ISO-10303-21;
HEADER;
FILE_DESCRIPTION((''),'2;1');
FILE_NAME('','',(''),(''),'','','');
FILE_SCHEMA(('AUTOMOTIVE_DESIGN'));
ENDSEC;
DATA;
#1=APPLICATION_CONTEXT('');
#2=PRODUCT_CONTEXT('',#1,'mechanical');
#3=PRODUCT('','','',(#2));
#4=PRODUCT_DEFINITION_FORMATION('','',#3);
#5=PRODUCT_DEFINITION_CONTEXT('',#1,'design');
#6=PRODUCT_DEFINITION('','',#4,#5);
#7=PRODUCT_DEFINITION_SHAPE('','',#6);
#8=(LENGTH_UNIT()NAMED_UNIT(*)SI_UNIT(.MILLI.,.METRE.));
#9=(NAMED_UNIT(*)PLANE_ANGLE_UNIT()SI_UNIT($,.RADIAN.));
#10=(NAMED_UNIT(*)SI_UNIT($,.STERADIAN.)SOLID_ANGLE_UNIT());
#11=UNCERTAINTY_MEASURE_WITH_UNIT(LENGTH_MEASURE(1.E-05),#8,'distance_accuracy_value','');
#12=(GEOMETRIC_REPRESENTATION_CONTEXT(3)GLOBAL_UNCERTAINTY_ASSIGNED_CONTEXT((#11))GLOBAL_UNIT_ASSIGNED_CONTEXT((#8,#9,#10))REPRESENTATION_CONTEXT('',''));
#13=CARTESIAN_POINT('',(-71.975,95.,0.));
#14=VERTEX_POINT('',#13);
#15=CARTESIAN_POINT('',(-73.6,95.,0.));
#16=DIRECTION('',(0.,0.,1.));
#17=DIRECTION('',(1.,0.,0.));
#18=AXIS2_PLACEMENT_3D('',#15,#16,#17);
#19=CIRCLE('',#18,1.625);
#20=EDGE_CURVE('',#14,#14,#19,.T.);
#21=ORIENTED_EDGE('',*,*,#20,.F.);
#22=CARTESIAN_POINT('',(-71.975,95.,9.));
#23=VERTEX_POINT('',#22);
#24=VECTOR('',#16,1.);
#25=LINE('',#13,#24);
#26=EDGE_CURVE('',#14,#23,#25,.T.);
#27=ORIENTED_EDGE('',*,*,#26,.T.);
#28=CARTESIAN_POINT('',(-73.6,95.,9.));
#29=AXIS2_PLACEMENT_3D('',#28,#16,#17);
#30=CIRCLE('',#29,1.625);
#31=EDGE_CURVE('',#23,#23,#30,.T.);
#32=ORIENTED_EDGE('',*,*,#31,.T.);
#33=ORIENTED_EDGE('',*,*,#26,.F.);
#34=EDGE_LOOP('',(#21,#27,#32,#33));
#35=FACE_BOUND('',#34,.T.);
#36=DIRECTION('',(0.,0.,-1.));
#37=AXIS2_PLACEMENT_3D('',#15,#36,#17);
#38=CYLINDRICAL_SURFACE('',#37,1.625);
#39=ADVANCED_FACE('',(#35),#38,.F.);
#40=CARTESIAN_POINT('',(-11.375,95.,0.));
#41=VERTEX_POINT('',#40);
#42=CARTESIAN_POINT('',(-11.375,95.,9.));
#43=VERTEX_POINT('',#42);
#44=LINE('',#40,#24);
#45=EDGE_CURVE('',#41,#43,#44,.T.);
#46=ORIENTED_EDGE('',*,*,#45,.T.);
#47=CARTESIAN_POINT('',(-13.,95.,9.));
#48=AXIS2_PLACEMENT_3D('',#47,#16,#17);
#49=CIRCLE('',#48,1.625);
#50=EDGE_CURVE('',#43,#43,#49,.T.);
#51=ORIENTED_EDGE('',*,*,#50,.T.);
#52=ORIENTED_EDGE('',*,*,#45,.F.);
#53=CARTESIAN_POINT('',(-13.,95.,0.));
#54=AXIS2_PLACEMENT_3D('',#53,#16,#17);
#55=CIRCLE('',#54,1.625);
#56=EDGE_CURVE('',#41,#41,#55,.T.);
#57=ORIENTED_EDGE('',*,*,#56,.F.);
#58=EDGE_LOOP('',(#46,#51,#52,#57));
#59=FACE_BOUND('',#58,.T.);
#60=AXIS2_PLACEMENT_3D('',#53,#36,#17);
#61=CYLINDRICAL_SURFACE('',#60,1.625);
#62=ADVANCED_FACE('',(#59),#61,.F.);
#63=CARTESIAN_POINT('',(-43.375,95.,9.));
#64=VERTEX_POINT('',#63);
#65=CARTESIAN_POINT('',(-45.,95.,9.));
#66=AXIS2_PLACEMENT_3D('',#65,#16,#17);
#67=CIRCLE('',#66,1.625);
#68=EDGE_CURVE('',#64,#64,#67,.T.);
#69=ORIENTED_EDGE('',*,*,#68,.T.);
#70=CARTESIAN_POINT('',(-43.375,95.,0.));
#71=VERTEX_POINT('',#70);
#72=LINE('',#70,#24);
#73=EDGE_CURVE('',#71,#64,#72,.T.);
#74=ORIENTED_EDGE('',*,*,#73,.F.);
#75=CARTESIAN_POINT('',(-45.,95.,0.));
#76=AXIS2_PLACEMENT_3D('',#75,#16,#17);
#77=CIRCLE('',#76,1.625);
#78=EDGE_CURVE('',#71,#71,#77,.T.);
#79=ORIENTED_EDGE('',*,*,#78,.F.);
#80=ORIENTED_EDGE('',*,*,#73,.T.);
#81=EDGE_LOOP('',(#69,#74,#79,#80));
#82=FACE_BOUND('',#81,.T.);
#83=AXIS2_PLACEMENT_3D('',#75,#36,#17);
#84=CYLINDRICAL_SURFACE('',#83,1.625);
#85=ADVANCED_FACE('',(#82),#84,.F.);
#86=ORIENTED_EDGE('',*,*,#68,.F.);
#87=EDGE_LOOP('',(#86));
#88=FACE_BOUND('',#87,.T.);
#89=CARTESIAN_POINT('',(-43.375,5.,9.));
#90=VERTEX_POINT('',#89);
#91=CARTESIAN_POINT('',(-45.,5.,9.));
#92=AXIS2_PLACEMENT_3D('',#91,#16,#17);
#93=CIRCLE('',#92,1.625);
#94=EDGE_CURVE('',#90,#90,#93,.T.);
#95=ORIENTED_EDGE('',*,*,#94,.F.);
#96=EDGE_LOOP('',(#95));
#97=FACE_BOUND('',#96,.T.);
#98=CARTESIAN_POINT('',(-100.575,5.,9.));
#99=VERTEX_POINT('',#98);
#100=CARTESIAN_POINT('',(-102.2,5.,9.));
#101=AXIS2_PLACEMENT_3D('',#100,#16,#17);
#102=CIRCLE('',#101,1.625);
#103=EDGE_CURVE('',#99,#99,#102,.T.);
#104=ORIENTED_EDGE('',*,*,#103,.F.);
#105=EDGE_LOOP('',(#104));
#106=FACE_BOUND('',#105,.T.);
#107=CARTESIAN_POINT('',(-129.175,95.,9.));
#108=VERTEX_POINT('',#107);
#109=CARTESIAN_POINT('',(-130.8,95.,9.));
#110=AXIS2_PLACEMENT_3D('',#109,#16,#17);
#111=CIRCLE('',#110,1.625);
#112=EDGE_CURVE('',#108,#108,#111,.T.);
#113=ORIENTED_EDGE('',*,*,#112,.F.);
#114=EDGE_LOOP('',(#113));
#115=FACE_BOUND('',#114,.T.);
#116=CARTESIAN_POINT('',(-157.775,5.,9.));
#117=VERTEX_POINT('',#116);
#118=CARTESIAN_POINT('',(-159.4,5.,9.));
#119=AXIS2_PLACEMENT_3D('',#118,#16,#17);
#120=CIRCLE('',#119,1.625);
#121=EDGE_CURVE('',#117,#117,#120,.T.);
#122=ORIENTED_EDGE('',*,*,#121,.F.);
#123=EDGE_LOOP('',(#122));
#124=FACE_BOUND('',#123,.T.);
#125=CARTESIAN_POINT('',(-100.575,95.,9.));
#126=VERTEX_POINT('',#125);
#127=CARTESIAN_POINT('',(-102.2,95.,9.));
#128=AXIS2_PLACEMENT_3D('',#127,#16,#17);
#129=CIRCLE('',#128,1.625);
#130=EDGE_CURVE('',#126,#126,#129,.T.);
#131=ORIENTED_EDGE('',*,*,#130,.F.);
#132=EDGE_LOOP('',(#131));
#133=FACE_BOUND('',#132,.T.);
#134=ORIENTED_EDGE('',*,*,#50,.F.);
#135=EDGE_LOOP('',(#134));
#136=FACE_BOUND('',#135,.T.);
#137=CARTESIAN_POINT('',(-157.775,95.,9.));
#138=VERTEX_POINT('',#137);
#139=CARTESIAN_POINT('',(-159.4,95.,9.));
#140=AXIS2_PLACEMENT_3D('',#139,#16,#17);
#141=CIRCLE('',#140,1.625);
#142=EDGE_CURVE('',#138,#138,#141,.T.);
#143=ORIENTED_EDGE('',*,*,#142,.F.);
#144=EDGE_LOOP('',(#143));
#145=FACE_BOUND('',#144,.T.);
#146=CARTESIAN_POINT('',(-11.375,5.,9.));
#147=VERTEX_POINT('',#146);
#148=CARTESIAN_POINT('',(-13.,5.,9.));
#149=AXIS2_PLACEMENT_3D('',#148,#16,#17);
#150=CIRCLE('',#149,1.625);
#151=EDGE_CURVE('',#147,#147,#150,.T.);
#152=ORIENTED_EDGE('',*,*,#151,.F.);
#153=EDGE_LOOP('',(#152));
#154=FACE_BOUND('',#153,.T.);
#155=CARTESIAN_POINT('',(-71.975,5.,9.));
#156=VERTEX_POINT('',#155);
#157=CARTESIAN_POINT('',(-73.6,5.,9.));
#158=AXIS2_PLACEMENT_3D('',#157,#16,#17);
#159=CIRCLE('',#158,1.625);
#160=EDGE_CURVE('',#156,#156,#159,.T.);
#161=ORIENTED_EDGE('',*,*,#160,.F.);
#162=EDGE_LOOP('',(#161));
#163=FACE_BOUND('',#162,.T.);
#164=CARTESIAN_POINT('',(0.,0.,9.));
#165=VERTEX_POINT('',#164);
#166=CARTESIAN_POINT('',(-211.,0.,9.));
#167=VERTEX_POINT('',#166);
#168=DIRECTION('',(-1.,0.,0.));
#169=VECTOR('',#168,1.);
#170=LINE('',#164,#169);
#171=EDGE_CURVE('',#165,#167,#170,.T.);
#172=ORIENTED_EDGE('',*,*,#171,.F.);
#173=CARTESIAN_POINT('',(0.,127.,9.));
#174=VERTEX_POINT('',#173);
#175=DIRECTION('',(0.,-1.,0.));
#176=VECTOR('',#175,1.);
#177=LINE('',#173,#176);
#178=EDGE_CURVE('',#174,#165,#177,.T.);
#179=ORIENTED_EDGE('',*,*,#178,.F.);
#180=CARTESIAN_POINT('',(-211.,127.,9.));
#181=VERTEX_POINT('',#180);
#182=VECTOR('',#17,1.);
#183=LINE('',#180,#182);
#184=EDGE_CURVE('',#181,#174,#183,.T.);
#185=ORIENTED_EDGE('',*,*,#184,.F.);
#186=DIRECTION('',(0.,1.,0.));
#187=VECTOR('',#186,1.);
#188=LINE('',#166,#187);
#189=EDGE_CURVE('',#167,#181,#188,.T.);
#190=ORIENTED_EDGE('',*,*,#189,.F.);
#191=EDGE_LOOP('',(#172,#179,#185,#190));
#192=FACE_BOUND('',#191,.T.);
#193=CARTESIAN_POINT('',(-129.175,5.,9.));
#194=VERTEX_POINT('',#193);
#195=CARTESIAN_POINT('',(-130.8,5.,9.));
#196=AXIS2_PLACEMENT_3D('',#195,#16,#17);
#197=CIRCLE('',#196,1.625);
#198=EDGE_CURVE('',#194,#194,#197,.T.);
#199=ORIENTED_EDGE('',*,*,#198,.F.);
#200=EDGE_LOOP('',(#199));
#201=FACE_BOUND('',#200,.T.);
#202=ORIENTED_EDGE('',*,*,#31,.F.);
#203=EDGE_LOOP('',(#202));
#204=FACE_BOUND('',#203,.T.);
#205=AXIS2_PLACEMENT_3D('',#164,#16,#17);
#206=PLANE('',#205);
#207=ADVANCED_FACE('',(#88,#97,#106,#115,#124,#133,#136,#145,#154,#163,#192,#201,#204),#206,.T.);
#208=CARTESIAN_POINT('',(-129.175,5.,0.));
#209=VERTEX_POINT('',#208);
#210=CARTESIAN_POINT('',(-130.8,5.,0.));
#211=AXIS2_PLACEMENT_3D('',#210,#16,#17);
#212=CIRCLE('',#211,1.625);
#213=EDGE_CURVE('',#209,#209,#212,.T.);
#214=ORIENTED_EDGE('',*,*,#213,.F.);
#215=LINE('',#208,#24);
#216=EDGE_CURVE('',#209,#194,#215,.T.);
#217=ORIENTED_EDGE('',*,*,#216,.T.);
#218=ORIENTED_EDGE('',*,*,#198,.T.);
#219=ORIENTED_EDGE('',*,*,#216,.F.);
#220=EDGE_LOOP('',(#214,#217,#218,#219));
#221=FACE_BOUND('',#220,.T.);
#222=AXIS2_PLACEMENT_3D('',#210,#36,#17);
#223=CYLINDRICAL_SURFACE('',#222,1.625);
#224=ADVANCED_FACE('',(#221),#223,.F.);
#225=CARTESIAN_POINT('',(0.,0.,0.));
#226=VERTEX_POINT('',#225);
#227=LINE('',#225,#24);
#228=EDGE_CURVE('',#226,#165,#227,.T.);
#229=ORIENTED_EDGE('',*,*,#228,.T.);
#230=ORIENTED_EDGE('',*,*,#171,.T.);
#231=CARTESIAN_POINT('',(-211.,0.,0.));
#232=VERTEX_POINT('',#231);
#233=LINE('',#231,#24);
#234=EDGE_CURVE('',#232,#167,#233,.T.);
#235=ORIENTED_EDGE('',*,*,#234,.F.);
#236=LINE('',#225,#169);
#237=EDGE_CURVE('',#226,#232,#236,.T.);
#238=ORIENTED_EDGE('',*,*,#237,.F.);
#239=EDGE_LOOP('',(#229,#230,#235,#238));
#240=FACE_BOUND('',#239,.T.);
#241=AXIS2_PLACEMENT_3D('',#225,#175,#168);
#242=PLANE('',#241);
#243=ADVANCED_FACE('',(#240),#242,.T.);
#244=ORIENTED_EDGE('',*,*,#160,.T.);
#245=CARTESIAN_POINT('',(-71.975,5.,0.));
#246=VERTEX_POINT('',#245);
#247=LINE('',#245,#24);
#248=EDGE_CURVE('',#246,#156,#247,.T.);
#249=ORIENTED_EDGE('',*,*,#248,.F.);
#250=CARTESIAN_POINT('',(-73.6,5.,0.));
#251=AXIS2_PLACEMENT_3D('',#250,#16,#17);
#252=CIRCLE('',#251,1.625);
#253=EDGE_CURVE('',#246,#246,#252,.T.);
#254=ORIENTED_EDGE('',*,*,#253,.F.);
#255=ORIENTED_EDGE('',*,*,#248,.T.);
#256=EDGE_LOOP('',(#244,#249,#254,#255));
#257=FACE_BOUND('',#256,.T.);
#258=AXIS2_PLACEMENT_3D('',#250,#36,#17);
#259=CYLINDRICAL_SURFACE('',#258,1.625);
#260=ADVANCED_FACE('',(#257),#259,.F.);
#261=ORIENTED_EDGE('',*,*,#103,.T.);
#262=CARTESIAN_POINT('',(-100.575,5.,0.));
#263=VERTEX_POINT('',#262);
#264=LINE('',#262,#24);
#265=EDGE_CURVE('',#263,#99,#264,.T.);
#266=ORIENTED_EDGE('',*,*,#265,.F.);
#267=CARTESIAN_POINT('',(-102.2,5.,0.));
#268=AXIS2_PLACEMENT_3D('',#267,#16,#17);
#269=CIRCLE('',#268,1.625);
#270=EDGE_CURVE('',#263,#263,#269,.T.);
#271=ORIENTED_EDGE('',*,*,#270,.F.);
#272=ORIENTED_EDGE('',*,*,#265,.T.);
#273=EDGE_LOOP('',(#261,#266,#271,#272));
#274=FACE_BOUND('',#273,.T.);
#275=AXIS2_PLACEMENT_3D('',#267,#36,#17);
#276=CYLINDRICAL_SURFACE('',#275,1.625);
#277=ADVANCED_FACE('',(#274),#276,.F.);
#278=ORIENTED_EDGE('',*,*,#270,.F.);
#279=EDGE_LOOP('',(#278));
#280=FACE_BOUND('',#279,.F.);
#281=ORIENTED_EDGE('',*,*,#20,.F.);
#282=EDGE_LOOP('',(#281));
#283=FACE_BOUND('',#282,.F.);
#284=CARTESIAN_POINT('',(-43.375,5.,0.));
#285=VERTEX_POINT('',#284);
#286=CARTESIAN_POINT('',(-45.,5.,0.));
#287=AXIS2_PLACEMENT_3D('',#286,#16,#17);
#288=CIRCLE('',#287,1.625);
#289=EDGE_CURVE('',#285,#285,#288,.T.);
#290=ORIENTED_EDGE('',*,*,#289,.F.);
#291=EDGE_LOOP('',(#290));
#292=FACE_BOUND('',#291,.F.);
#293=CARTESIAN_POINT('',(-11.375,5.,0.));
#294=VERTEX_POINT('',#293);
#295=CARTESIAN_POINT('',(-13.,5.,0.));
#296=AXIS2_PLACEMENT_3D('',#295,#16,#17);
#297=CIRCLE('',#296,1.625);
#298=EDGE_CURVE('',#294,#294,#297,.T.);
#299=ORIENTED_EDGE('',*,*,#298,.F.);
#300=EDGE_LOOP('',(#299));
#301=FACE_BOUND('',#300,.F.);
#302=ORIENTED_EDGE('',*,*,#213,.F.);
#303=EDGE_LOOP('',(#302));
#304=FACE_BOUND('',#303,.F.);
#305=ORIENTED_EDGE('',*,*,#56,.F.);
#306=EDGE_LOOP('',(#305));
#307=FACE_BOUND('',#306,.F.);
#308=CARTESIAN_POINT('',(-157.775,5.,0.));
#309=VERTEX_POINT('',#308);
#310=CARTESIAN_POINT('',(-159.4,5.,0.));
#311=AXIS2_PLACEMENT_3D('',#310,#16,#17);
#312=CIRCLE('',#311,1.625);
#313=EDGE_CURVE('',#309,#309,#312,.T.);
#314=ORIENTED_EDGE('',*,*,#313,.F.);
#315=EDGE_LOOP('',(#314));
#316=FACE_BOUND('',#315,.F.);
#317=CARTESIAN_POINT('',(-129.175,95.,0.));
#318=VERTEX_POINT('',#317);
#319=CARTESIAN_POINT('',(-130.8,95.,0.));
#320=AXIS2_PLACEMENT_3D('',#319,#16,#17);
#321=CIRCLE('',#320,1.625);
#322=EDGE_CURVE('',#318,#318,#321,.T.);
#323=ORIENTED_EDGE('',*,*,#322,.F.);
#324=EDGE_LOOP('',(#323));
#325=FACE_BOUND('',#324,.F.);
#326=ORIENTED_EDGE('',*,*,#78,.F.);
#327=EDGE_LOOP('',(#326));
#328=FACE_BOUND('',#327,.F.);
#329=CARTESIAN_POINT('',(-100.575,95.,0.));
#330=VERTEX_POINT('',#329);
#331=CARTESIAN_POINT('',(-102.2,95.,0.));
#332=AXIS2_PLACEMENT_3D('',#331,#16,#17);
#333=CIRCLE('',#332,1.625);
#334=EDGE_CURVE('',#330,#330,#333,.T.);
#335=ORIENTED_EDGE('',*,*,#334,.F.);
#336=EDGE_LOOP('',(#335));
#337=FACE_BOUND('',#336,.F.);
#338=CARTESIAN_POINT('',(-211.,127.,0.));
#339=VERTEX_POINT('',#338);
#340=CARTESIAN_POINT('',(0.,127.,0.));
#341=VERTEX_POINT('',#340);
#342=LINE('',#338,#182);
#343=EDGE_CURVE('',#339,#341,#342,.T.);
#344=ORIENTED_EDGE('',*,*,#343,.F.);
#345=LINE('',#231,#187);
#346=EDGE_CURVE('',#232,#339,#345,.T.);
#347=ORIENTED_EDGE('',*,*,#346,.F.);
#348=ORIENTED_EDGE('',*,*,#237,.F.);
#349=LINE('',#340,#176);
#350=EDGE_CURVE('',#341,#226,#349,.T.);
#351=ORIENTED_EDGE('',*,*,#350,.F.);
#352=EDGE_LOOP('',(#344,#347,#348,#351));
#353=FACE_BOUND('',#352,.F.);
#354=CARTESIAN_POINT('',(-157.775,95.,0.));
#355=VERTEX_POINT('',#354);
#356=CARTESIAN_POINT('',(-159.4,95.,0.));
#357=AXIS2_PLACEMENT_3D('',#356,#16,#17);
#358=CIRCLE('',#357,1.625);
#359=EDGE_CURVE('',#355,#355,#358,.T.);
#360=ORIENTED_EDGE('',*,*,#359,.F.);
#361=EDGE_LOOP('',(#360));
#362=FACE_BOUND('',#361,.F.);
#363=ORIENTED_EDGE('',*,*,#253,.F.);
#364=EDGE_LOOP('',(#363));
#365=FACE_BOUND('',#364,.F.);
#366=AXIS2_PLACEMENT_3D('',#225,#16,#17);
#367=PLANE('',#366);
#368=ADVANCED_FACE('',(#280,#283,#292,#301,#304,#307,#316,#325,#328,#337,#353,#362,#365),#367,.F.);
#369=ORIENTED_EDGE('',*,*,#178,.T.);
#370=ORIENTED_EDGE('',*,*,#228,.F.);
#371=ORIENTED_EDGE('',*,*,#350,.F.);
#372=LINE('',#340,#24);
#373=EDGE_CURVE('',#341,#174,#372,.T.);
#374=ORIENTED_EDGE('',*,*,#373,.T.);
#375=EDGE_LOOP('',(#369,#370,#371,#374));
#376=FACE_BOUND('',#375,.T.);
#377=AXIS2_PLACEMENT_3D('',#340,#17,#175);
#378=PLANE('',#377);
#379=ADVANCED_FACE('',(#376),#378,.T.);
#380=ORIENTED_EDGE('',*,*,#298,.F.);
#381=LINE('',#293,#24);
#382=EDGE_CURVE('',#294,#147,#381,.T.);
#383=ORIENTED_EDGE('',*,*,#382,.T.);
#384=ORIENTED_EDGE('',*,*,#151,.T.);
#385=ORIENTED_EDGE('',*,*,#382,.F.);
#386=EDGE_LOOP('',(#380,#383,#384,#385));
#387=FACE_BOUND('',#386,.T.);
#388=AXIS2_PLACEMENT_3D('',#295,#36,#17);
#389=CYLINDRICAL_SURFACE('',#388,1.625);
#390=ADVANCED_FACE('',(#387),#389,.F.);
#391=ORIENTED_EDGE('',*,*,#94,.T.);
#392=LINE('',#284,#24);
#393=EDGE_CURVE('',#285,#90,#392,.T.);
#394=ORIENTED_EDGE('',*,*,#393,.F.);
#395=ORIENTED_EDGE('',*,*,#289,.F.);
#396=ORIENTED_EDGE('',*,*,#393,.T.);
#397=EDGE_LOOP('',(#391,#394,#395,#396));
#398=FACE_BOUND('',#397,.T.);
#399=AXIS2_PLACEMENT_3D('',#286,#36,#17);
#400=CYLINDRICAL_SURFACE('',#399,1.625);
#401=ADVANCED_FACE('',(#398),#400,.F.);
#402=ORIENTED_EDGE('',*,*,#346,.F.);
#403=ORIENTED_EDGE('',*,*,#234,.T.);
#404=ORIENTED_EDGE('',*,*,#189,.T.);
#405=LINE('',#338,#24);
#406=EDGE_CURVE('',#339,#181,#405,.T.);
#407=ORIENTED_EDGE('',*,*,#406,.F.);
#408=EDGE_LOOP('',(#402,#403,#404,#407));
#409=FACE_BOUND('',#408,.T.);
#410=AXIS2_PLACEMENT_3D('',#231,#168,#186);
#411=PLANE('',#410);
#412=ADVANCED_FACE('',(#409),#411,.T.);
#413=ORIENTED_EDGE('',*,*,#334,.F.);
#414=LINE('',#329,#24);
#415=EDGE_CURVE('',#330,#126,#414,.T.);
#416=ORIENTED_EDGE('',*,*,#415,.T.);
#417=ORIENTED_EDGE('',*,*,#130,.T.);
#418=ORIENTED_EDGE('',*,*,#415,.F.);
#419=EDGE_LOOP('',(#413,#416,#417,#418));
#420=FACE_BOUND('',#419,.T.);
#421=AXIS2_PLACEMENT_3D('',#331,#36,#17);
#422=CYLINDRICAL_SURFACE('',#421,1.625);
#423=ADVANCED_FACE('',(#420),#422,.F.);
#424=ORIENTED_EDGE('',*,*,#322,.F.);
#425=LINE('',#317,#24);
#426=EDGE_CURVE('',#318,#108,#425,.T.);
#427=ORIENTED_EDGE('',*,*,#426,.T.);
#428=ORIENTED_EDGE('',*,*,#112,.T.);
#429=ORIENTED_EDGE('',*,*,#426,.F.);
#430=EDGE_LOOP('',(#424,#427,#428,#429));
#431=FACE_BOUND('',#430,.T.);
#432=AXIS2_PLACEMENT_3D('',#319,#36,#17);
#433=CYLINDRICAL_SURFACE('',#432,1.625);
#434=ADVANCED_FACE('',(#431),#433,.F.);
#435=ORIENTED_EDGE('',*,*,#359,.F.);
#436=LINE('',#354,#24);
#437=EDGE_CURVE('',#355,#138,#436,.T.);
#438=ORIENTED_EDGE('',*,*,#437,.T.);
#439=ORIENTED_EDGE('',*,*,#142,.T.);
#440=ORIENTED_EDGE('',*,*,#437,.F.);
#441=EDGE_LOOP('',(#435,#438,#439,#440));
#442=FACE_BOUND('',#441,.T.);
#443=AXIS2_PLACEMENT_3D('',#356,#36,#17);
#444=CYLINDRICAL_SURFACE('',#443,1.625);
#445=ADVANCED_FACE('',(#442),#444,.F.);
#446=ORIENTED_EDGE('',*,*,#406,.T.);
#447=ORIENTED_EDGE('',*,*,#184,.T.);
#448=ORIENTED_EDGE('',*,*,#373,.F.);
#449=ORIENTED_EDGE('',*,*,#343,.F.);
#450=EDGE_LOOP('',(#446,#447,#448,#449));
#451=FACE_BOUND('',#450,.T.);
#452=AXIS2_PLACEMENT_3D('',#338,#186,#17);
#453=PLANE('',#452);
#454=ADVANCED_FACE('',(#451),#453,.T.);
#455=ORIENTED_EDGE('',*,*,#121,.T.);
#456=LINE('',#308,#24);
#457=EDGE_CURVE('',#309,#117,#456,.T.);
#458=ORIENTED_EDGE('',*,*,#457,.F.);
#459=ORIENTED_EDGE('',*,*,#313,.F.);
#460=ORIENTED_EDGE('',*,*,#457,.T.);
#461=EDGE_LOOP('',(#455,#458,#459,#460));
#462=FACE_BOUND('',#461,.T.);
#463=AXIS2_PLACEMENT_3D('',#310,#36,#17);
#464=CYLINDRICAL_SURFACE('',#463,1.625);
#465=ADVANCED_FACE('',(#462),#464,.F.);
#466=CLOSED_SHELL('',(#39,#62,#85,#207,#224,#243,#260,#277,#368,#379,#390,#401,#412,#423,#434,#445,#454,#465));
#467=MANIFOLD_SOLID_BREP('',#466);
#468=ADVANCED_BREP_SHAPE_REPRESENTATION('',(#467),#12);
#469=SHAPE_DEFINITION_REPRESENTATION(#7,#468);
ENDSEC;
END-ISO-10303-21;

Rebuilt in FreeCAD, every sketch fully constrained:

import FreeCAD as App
import Part
import Sketcher


def add_polygon(sketch, points):
    """Adds a closed chain of lines whose ends are joined by coincident constraints."""
    first, n = sketch.GeometryCount, len(points)
    for a, b in zip(points, points[1:] + points[:1]):
        sketch.addGeometry(Part.LineSegment(App.Vector(*a, 0), App.Vector(*b, 0)), False)
    for i in range(n):
        sketch.addConstraint(Sketcher.Constraint("Coincident", first + i, 2, first + (i + 1) % n, 1))

doc = App.newDocument("Part")
params = doc.addObject("Spreadsheet::Sheet", "Params")
for row, (alias, value) in enumerate([
    ("sketch1_diameter", "3.25 mm"),
    ("sketch1_width", "211 mm"),
    ("sketch1_height", "127 mm"),
    ("pad1_length", "9 mm"),
], start=1):
    params.set(f"A{row}", alias)
    params.set(f"B{row}", "=" + value)
    params.setAlias(f"B{row}", alias)

body = doc.addObject("PartDesign::Body", "Body")

sketch1 = doc.addObject("Sketcher::SketchObject", "Sketch")
body.addObject(sketch1)
sketch1.AttachmentSupport = (doc.XY_Plane, [""])
sketch1.MapMode = "FlatFace"
add_polygon(sketch1, [(-211, 0), (0, 0), (0, 127), (-211, 127)])
sketch1.addGeometry(Part.Circle(App.Vector(-159.4, 5, 0), App.Vector(0, 0, 1), 1.6), False)
sketch1.addGeometry(Part.Circle(App.Vector(-130.8, 5, 0), App.Vector(0, 0, 1), 1.6), False)
sketch1.addGeometry(Part.Circle(App.Vector(-102.2, 5, 0), App.Vector(0, 0, 1), 1.6), False)
sketch1.addGeometry(Part.Circle(App.Vector(-73.6, 5, 0), App.Vector(0, 0, 1), 1.6), False)
sketch1.addGeometry(Part.Circle(App.Vector(-45, 5, 0), App.Vector(0, 0, 1), 1.6), False)
sketch1.addGeometry(Part.Circle(App.Vector(-13, 5, 0), App.Vector(0, 0, 1), 1.6), False)
sketch1.addGeometry(Part.Circle(App.Vector(-159.4, 95, 0), App.Vector(0, 0, 1), 1.6), False)
sketch1.addGeometry(Part.Circle(App.Vector(-130.8, 95, 0), App.Vector(0, 0, 1), 1.6), False)
sketch1.addGeometry(Part.Circle(App.Vector(-102.2, 95, 0), App.Vector(0, 0, 1), 1.6), False)
sketch1.addGeometry(Part.Circle(App.Vector(-73.6, 95, 0), App.Vector(0, 0, 1), 1.6), False)
sketch1.addGeometry(Part.Circle(App.Vector(-45, 95, 0), App.Vector(0, 0, 1), 1.6), False)
sketch1.addGeometry(Part.Circle(App.Vector(-13, 95, 0), App.Vector(0, 0, 1), 1.6), False)
sketch1.addConstraint([
    Sketcher.Constraint("Horizontal", 0),
    Sketcher.Constraint("Vertical", 1),
    Sketcher.Constraint("Horizontal", 2),
    Sketcher.Constraint("Vertical", 3),
    Sketcher.Constraint("Coincident", 0, 2, -1, 1),
    Sketcher.Constraint("Equal", 4, 5),
    Sketcher.Constraint("Equal", 5, 6),
    Sketcher.Constraint("Equal", 6, 7),
    Sketcher.Constraint("Equal", 7, 8),
    Sketcher.Constraint("Equal", 8, 9),
    Sketcher.Constraint("Equal", 9, 10),
    Sketcher.Constraint("Equal", 10, 11),
    Sketcher.Constraint("Equal", 11, 12),
    Sketcher.Constraint("Equal", 12, 13),
    Sketcher.Constraint("Equal", 13, 14),
    Sketcher.Constraint("Equal", 14, 15),
    Sketcher.Constraint("Horizontal", 4, 3, 5, 3),
    Sketcher.Constraint("Horizontal", 5, 3, 6, 3),
    Sketcher.Constraint("Horizontal", 6, 3, 7, 3),
    Sketcher.Constraint("Horizontal", 7, 3, 8, 3),
    Sketcher.Constraint("Horizontal", 8, 3, 9, 3),
    Sketcher.Constraint("Horizontal", 10, 3, 11, 3),
    Sketcher.Constraint("Horizontal", 11, 3, 12, 3),
    Sketcher.Constraint("Horizontal", 12, 3, 13, 3),
    Sketcher.Constraint("Horizontal", 13, 3, 14, 3),
    Sketcher.Constraint("Horizontal", 14, 3, 15, 3),
    Sketcher.Constraint("Vertical", 4, 3, 10, 3),
    Sketcher.Constraint("Vertical", 5, 3, 11, 3),
    Sketcher.Constraint("Vertical", 6, 3, 12, 3),
    Sketcher.Constraint("Vertical", 7, 3, 13, 3),
    Sketcher.Constraint("Vertical", 8, 3, 14, 3),
    Sketcher.Constraint("Vertical", 9, 3, 15, 3),
    Sketcher.Constraint("Diameter", 4, 3.25),
    Sketcher.Constraint("DistanceX", 0, 1, 0, 2, 211.0),
    Sketcher.Constraint("DistanceY", 1, 1, 1, 2, 127.0),
    Sketcher.Constraint("DistanceY", -1, 1, 4, 3, 5.0),
    Sketcher.Constraint("DistanceX", 9, 3, -1, 1, 13.0),
    Sketcher.Constraint("DistanceX", 8, 3, 9, 3, 32.0),
    Sketcher.Constraint("DistanceY", 4, 3, 10, 3, 90.0),
    Sketcher.Constraint("DistanceX", 4, 3, 5, 3, 28.6),
    Sketcher.Constraint("DistanceX", 5, 3, 6, 3, 28.6),
    Sketcher.Constraint("DistanceX", 6, 3, 7, 3, 28.6),
    Sketcher.Constraint("DistanceX", 7, 3, 8, 3, 28.6),
])
sketch1.setExpression("Constraints[36]", "Params.sketch1_diameter")
sketch1.setExpression("Constraints[37]", "Params.sketch1_width")
sketch1.setExpression("Constraints[38]", "Params.sketch1_height")
pad1 = doc.addObject("PartDesign::Pad", "Pad")
body.addObject(pad1)
pad1.Profile = sketch1
pad1.setExpression("Length", "Params.pad1_length")

doc.recompute()
